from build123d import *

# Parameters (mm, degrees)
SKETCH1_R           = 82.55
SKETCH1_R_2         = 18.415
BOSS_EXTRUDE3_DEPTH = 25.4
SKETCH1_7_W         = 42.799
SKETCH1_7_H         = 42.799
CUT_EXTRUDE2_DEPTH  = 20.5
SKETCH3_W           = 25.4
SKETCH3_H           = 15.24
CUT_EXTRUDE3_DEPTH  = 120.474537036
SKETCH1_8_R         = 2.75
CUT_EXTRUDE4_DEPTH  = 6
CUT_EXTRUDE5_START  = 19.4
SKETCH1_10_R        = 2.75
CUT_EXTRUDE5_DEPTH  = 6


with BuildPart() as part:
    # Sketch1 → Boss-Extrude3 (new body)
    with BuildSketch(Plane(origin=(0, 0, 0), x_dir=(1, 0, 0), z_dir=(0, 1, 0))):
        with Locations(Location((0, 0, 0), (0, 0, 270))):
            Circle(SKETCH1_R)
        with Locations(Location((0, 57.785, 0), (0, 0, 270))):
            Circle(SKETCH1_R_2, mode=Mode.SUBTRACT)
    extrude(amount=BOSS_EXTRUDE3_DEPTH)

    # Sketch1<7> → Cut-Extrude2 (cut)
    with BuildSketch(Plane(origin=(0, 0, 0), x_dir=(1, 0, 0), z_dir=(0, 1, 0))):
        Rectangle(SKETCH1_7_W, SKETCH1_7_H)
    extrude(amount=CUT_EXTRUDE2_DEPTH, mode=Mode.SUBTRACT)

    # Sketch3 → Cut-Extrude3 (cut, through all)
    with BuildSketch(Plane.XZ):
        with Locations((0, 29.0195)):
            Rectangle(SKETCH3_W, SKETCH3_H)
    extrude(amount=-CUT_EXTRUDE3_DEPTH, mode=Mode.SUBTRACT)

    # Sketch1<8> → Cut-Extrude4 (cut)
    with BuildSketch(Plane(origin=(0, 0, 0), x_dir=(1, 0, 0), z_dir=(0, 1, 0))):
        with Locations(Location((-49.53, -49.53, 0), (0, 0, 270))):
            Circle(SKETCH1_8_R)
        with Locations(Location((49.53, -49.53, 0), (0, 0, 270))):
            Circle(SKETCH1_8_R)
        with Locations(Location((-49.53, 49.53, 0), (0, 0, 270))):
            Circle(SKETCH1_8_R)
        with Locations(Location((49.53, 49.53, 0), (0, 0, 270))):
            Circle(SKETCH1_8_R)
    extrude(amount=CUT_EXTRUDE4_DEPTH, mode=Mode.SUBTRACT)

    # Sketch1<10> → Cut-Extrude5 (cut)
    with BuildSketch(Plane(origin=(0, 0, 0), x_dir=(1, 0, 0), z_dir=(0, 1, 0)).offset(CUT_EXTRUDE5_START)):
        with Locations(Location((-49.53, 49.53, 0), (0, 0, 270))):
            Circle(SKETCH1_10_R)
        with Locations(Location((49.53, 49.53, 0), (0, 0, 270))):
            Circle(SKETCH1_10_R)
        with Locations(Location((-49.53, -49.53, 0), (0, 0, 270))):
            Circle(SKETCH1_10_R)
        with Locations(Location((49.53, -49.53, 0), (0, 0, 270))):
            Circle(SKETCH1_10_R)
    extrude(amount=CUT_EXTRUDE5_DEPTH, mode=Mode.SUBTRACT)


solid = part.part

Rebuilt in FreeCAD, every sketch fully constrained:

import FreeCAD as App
import Part
import Sketcher
Q = App.Units.Quantity

doc = App.newDocument("Part")
body = doc.addObject("PartDesign::Body", "Body")

# Sketch on XZ plane
sketch1 = body.newObject("Sketcher::SketchObject", "Sketch")
sketch1.AttachmentSupport = (doc.getObject("XZ_Plane"), [""])
sketch1.MapMode = "FlatFace"
sketch1.addGeometry([
    Part.Circle(App.Vector(0, 0, 0), App.Vector(0, 0, 1), 83),
    Part.Circle(App.Vector(0, -58, 0), App.Vector(0, 0, 1), 18),
], False)
sketch1.addConstraint([
    Sketcher.Constraint("Coincident", 0, 3, -1, 1),
    Sketcher.Constraint("PointOnObject", 1, 3, -2),
    Sketcher.Constraint("Diameter", 0, Q("6.5 in")),
    Sketcher.Constraint("Diameter", 1, Q("1.45 in")),
    Sketcher.Constraint("DistanceY", 1, 3, -1, 1, Q("2.275 in")),
])
pad1 = body.newObject("PartDesign::Pad", "Pad")
pad1.Profile = sketch1
pad1.Length = Q("1 in")
pad1.Reversed = True

# Sketch on XZ plane
sketch2 = body.newObject("Sketcher::SketchObject", "Sketch001")
sketch2.AttachmentSupport = (doc.getObject("XZ_Plane"), [""])
sketch2.MapMode = "FlatFace"
sketch2.addGeometry([
    Part.LineSegment(App.Vector(-21, -21, 0), App.Vector(-21, 21, 0)),
    Part.LineSegment(App.Vector(-21, 21, 0), App.Vector(21, 21, 0)),
    Part.LineSegment(App.Vector(21, 21, 0), App.Vector(21, -21, 0)),
    Part.LineSegment(App.Vector(21, -21, 0), App.Vector(-21, -21, 0)),
], False)
sketch2.addConstraint([
    Sketcher.Constraint("Coincident", 0, 2, 1, 1),
    Sketcher.Constraint("Coincident", 1, 2, 2, 1),
    Sketcher.Constraint("Coincident", 2, 2, 3, 1),
    Sketcher.Constraint("Coincident", 3, 2, 0, 1),
    Sketcher.Constraint("Vertical", 0),
    Sketcher.Constraint("Horizontal", 1),
    Sketcher.Constraint("Vertical", 2),
    Sketcher.Constraint("Horizontal", 3),
    Sketcher.Constraint("Symmetric", 0, 2, 2, 2, -1, 1),
    Sketcher.Constraint("Equal", 3, 0),
    Sketcher.Constraint("DistanceX", 1, 1, 1, 2, Q("1.685 in")),
])
pocket1 = body.newObject("PartDesign::Pocket", "Pocket")
pocket1.Profile = sketch2
pocket1.Length = 20.5

# Sketch on XZ plane
sketch3 = body.newObject("Sketcher::SketchObject", "Sketch002")
sketch3.AttachmentSupport = (doc.getObject("XZ_Plane"), [""])
sketch3.MapMode = "FlatFace"
sketch3.addGeometry([
    Part.LineSegment(App.Vector(-13, 37, 0), App.Vector(-13, 21, 0)),
    Part.LineSegment(App.Vector(-13, 21, 0), App.Vector(13, 21, 0)),
    Part.LineSegment(App.Vector(13, 21, 0), App.Vector(13, 37, 0)),
    Part.LineSegment(App.Vector(13, 37, 0), App.Vector(-13, 37, 0)),
], False)
sketch3.addConstraint([
    Sketcher.Constraint("Coincident", 0, 2, 1, 1),
    Sketcher.Constraint("Coincident", 1, 2, 2, 1),
    Sketcher.Constraint("Coincident", 2, 2, 3, 1),
    Sketcher.Constraint("Coincident", 3, 2, 0, 1),
    Sketcher.Constraint("Vertical", 0),
    Sketcher.Constraint("Horizontal", 1),
    Sketcher.Constraint("Vertical", 2),
    Sketcher.Constraint("Horizontal", 3),
    Sketcher.Constraint("DistanceX", 1, 1, 1, 2, Q("1 in")),
    Sketcher.Constraint("DistanceY", 0, 2, 0, 1, Q("0.6 in")),
    Sketcher.Constraint("DistanceX", 0, 2, -1, 1, Q("0.5 in")),
    Sketcher.Constraint("DistanceY", -1, 1, 0, 2, Q("0.8425 in")),
])
pocket2 = body.newObject("PartDesign::Pocket", "Pocket001")
pocket2.Profile = sketch3
pocket2.Type = "ThroughAll"

# Sketch on XZ plane
sketch4 = body.newObject("Sketcher::SketchObject", "Sketch003")
sketch4.AttachmentSupport = (doc.getObject("XZ_Plane"), [""])
sketch4.MapMode = "FlatFace"
sketch4.addGeometry([
    Part.Circle(App.Vector(-49.5, 49.5, 0), App.Vector(0, 0, 1), 2.8),
    Part.Circle(App.Vector(49.5, 49.5, 0), App.Vector(0, 0, 1), 2.8),
    Part.Circle(App.Vector(-49.5, -49.5, 0), App.Vector(0, 0, 1), 2.8),
    Part.Circle(App.Vector(49.5, -49.5, 0), App.Vector(0, 0, 1), 2.8),
], False)
sketch4.addConstraint([
    Sketcher.Constraint("Equal", 0, 1),
    Sketcher.Constraint("Equal", 1, 2),
    Sketcher.Constraint("Equal", 2, 3),
    Sketcher.Constraint("Symmetric", 1, 3, 2, 3, -1, 1),
    Sketcher.Constraint("Symmetric", 0, 3, 3, 3, -1, 1),
    Sketcher.Constraint("Symmetric", 0, 3, 1, 3, -2),
    Sketcher.Constraint("DistanceX", 0, 3, 1, 3, Q("3.9 in")),
    Sketcher.Constraint("DistanceY", 2, 3, 0, 3, Q("3.9 in")),
    Sketcher.Constraint("Diameter", 0, 5.5),
])
pocket3 = body.newObject("PartDesign::Pocket", "Pocket002")
pocket3.Profile = sketch4
pocket3.Length = 6

# Sketch on XZ plane
sketch5 = body.newObject("Sketcher::SketchObject", "Sketch004")
sketch5.AttachmentSupport = (doc.getObject("XZ_Plane"), [""])
sketch5.MapMode = "FlatFace"
sketch5.AttachmentOffset = App.Placement(App.Vector(0, 0, -19.4), App.Rotation())
sketch5.addGeometry([
    Part.Circle(App.Vector(-49.5, -49.5, 0), App.Vector(0, 0, 1), 2.8),
    Part.Circle(App.Vector(49.5, -49.5, 0), App.Vector(0, 0, 1), 2.8),
    Part.Circle(App.Vector(-49.5, 49.5, 0), App.Vector(0, 0, 1), 2.8),
    Part.Circle(App.Vector(49.5, 49.5, 0), App.Vector(0, 0, 1), 2.8),
], False)
sketch5.addConstraint([
    Sketcher.Constraint("Equal", 0, 1),
    Sketcher.Constraint("Equal", 1, 2),
    Sketcher.Constraint("Equal", 2, 3),
    Sketcher.Constraint("Symmetric", 1, 3, 2, 3, -1, 1),
    Sketcher.Constraint("Symmetric", 0, 3, 3, 3, -1, 1),
    Sketcher.Constraint("Symmetric", 0, 3, 1, 3, -2),
    Sketcher.Constraint("DistanceX", 0, 3, 1, 3, Q("3.9 in")),
    Sketcher.Constraint("DistanceY", 0, 3, 2, 3, Q("3.9 in")),
    Sketcher.Constraint("Diameter", 0, 5.5),
])
pocket4 = body.newObject("PartDesign::Pocket", "Pocket003")
pocket4.Profile = sketch5
pocket4.Length = 6

doc.recompute()
